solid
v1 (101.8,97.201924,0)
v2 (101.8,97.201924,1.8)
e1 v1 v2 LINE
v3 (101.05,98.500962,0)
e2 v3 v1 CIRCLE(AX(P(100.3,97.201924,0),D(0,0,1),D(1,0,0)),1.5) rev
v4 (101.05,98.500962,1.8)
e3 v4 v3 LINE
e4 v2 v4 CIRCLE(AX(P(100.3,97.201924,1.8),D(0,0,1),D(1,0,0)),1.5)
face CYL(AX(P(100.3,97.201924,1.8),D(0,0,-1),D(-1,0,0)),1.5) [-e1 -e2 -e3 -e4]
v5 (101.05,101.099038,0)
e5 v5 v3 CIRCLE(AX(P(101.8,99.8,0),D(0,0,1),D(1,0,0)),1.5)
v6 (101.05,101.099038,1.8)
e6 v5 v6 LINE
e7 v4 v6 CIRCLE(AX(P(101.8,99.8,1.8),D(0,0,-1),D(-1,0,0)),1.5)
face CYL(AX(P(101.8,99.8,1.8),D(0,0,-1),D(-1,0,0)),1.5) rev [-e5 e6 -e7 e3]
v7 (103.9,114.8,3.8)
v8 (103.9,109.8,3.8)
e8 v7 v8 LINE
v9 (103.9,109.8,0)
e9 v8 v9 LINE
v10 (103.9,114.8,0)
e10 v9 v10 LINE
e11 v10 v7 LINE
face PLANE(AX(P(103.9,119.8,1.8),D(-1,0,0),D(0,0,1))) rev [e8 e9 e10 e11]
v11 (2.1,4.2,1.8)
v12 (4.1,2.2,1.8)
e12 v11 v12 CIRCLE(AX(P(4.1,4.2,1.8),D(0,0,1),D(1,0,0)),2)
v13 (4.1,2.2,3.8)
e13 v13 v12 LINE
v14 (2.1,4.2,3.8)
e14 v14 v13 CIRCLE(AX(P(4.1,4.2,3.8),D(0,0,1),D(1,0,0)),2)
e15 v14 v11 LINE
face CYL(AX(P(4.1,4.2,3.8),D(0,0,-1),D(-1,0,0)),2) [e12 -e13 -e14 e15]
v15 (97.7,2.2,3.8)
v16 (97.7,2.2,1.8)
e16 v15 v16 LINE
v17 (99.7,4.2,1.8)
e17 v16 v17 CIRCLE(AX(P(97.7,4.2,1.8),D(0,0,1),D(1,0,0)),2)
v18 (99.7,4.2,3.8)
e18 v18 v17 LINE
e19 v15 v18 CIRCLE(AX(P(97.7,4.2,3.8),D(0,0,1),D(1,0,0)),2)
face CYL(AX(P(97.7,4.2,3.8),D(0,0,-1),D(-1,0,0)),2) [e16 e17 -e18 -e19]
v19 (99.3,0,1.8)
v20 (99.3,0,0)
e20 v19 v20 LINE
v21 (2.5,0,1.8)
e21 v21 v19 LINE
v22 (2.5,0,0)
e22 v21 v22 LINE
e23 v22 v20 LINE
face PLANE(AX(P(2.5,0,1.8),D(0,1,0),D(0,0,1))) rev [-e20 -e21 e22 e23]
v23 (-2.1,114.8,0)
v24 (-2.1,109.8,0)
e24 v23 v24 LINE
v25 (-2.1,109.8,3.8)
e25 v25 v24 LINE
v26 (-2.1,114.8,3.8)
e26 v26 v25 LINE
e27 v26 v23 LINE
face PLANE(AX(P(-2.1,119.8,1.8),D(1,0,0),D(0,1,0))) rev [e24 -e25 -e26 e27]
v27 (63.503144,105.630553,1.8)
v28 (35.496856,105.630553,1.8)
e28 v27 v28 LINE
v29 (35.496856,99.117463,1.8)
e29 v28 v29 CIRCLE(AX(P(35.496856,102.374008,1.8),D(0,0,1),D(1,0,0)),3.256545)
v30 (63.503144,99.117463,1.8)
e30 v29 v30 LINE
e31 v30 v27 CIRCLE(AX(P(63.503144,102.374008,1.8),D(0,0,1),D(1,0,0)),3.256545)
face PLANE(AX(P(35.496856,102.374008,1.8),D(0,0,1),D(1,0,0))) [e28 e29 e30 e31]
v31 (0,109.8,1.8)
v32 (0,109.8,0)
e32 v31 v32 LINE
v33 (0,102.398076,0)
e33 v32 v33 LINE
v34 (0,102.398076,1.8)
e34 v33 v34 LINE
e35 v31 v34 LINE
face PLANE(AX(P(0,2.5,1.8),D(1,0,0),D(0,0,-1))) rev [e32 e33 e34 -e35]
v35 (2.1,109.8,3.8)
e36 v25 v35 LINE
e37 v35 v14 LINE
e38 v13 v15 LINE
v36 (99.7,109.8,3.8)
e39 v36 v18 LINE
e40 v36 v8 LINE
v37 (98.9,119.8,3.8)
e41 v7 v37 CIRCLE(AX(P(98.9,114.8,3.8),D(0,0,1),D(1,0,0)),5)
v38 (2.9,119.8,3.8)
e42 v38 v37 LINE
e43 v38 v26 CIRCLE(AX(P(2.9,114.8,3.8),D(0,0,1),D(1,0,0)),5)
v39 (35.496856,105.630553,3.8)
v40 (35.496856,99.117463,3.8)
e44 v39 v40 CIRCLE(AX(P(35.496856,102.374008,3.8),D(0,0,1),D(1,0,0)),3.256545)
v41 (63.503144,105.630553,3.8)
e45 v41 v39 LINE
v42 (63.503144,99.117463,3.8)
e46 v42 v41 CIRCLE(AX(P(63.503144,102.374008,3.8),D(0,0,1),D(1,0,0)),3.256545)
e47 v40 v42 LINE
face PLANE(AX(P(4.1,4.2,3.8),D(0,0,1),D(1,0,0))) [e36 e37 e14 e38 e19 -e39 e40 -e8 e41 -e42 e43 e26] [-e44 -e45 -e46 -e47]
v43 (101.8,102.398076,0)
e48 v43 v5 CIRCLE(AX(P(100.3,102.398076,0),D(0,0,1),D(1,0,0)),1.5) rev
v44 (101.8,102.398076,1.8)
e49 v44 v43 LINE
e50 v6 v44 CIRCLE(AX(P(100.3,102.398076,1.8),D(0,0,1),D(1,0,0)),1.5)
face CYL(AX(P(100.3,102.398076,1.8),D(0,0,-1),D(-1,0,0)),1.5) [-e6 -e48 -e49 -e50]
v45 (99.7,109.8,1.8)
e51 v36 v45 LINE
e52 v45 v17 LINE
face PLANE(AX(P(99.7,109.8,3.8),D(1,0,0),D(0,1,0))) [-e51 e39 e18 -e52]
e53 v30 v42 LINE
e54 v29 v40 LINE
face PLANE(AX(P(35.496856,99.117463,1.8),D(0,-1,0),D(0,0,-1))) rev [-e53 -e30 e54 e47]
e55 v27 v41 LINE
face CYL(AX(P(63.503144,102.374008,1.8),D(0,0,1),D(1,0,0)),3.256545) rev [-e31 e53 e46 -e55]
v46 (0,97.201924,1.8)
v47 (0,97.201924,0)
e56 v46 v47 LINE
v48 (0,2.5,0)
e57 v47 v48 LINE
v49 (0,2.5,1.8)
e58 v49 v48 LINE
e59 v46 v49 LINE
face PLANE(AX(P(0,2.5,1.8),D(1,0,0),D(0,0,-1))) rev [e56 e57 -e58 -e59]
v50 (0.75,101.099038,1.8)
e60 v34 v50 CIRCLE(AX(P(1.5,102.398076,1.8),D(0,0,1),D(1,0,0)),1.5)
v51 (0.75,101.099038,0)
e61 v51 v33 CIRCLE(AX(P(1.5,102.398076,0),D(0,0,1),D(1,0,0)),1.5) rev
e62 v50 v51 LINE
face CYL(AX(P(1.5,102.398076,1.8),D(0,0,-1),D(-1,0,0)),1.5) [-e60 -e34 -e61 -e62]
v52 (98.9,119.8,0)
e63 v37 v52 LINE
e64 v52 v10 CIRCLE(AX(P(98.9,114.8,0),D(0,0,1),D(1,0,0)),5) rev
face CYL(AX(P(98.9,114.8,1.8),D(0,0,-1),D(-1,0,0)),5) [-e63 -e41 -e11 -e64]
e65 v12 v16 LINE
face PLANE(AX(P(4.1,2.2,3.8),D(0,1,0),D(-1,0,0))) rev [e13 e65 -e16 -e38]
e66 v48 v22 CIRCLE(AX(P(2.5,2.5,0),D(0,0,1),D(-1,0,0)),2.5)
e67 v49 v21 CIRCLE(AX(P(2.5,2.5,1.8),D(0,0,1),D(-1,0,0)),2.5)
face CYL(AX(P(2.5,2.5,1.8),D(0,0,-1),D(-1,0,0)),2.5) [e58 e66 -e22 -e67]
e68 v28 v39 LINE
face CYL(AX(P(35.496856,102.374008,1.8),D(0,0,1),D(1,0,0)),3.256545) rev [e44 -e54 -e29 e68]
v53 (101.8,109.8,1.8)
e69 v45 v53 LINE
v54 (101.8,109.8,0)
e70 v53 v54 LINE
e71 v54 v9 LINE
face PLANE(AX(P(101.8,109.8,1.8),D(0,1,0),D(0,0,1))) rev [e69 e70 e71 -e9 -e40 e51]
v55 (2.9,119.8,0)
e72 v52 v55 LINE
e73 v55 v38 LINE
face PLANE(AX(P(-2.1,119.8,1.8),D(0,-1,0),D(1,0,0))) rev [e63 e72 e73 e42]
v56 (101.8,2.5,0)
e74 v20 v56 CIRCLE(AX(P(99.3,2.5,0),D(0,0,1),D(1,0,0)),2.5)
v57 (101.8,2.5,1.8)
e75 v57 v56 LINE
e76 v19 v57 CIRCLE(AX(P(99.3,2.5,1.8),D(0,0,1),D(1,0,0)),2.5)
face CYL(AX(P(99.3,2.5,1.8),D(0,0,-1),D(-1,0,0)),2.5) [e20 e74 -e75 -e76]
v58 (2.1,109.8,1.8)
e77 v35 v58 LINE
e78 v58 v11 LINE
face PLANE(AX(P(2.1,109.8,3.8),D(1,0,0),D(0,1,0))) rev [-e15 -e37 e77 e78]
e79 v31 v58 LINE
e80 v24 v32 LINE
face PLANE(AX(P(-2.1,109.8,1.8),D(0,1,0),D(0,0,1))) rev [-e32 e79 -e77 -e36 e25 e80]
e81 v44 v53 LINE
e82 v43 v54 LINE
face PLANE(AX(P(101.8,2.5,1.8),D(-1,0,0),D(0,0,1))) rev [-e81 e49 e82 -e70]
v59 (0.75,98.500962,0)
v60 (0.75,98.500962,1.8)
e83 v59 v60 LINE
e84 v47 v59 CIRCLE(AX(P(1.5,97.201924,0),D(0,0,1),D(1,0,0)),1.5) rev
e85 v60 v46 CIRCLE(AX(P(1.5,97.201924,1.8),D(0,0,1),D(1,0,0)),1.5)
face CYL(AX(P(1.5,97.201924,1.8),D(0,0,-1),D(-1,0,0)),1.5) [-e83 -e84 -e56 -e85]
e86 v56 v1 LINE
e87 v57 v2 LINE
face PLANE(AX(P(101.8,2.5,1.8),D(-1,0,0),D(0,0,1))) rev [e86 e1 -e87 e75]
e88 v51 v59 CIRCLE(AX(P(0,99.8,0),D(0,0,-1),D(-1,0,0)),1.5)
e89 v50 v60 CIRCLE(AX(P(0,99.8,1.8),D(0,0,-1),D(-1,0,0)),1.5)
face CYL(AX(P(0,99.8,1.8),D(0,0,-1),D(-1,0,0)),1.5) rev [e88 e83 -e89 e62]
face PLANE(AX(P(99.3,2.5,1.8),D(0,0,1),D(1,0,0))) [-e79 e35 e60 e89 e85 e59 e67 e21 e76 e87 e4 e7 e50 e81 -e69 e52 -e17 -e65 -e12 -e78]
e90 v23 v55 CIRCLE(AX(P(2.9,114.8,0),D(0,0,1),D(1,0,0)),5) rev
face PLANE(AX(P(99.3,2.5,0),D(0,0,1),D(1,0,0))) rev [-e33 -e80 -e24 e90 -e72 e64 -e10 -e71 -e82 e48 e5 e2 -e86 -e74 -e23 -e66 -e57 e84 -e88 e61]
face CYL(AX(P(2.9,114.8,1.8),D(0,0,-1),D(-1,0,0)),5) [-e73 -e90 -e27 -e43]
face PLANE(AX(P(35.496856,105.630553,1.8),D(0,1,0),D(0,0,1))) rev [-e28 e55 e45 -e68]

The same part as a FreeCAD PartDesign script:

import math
import FreeCAD as App
import Part
import Sketcher
Q = App.Units.Quantity


def edges_at(feature, points):
    """Names of the edges that pass closest to the given points."""
    edges = feature.Shape.Edges
    near = lambda p: min(range(len(edges)), key=lambda i: edges[i].distToShape(Part.Vertex(*p))[0])
    return sorted({f"Edge{near(p) + 1}" for p in points})

doc = App.newDocument("Part")
params = doc.addObject("Spreadsheet::Sheet", "Params")
for row, (alias, value) in enumerate([
    ("sketch1_radius", "2.5 mm"),
    ("sketch1_width", "106 mm"),
    ("sketch1_height", "10 mm"),
    ("sketch1_width2", "2.1 mm"),
    ("sketch1_height2", "107.3 mm"),
    ("pad1_length", "1.8 mm"),
    ("sketch2_radius", "2 mm"),
    ("sketch2_width", "106 mm"),
    ("sketch2_height", "10 mm"),
    ("sketch2_width2", "93.6 mm"),
    ("sketch2_height2", "105.6 mm"),
    ("pad2_length", "2 mm"),
    ("pocket1_length", "2 mm"),
    ("sketch4_diameter", "3 mm"),
    ("pocket2_length", "1.8 mm"),
    ("fillet_radius", "1.5 mm"),
    ("fillet2_radius", "5 mm"),
], start=1):
    params.set(f"A{row}", alias)
    params.set(f"B{row}", "=" + value)
    params.setAlias(f"B{row}", alias)

body = doc.addObject("PartDesign::Body", "Body")

sketch1 = body.newObject("Sketcher::SketchObject", "Sketch")
sketch1.AttachmentSupport = (doc.getObject("XY_Plane"), [""])
sketch1.MapMode = "FlatFace"
sketch1.addGeometry([
    Part.LineSegment(App.Vector(101.8, 109.8, 0), App.Vector(103.9, 109.8, 0)),
    Part.LineSegment(App.Vector(103.9, 109.8, 0), App.Vector(103.9, 119.8, 0)),
    Part.LineSegment(App.Vector(103.9, 119.8, 0), App.Vector(-2.1, 119.8, 0)),
    Part.LineSegment(App.Vector(-2.1, 119.8, 0), App.Vector(-2.1, 109.8, 0)),
    Part.LineSegment(App.Vector(-2.1, 109.8, 0), App.Vector(0, 109.8, 0)),
    Part.LineSegment(App.Vector(0, 109.8, 0), App.Vector(0, 2.5, 0)),
    Part.ArcOfCircle(Part.Circle(App.Vector(2.5, 2.5, 0), App.Vector(0, 0, 1), 2.5), math.radians(180), math.radians(270)),
    Part.LineSegment(App.Vector(2.5, 0, 0), App.Vector(99.3, 0, 0)),
    Part.ArcOfCircle(Part.Circle(App.Vector(99.3, 2.5, 0), App.Vector(0, 0, 1), 2.5), math.radians(-90), math.radians(0)),
    Part.LineSegment(App.Vector(101.8, 2.5, 0), App.Vector(101.8, 109.8, 0)),
], False)
sketch1.addConstraint([
    Sketcher.Constraint("Coincident", 0, 2, 1, 1),
    Sketcher.Constraint("Coincident", 1, 2, 2, 1),
    Sketcher.Constraint("Coincident", 2, 2, 3, 1),
    Sketcher.Constraint("Coincident", 3, 2, 4, 1),
    Sketcher.Constraint("Coincident", 4, 2, 5, 1),
    Sketcher.Constraint("Tangent", 5, 2, 6, 1),
    Sketcher.Constraint("Tangent", 6, 2, 7, 1),
    Sketcher.Constraint("Tangent", 7, 2, 8, 1),
    Sketcher.Constraint("Tangent", 8, 2, 9, 1),
    Sketcher.Constraint("Coincident", 9, 2, 0, 1),
    Sketcher.Constraint("Horizontal", 0),
    Sketcher.Constraint("Vertical", 1),
    Sketcher.Constraint("Horizontal", 2),
    Sketcher.Constraint("Vertical", 3),
    Sketcher.Constraint("Horizontal", 4),
    Sketcher.Constraint("Vertical", 5),
    Sketcher.Constraint("Horizontal", 7),
    Sketcher.Constraint("Vertical", 9),
    Sketcher.Constraint("Equal", 6, 8),
    Sketcher.Constraint("PointOnObject", 4, 2, -2),
    Sketcher.Constraint("PointOnObject", 6, 2, -1),
    Sketcher.Constraint("Horizontal", 0, 2, 3, 2),
    Sketcher.Constraint("Equal", 0, 4),
    Sketcher.Constraint("Radius", 6, Q("2.5 mm")),
    Sketcher.Constraint("DistanceX", 2, 2, 2, 1, Q("106 mm")),
    Sketcher.Constraint("DistanceY", 1, 1, 1, 2, Q("10 mm")),
    Sketcher.Constraint("DistanceX", 0, 1, 0, 2, Q("2.1 mm")),
    Sketcher.Constraint("DistanceY", 5, 2, 5, 1, Q("107.3 mm")),
])
sketch1.setExpression("Constraints[23]", "Params.sketch1_radius")
sketch1.setExpression("Constraints[24]", "Params.sketch1_width")
sketch1.setExpression("Constraints[25]", "Params.sketch1_height")
sketch1.setExpression("Constraints[26]", "Params.sketch1_width2")
sketch1.setExpression("Constraints[27]", "Params.sketch1_height2")
pad1 = body.newObject("PartDesign::Pad", "Pad")
pad1.Profile = sketch1
pad1.setExpression("Length", "Params.pad1_length")

sketch2 = body.newObject("Sketcher::SketchObject", "Sketch001")
sketch2.AttachmentSupport = (doc.getObject("XY_Plane"), [""])
sketch2.MapMode = "FlatFace"
sketch2.AttachmentOffset = App.Placement(App.Vector(0, 0, 1.8), App.Rotation())
sketch2.addGeometry([
    Part.LineSegment(App.Vector(2.1, 109.8, 0), App.Vector(2.1, 4.2, 0)),
    Part.ArcOfCircle(Part.Circle(App.Vector(4.1, 4.2, 0), App.Vector(0, 0, 1), 2), math.radians(-180), math.radians(-90)),
    Part.LineSegment(App.Vector(4.1, 2.2, 0), App.Vector(97.7, 2.2, 0)),
    Part.ArcOfCircle(Part.Circle(App.Vector(97.7, 4.2, 0), App.Vector(0, 0, 1), 2), math.radians(-90), math.radians(0)),
    Part.LineSegment(App.Vector(99.7, 4.2, 0), App.Vector(99.7, 109.8, 0)),
    Part.LineSegment(App.Vector(99.7, 109.8, 0), App.Vector(103.9, 109.8, 0)),
    Part.LineSegment(App.Vector(103.9, 109.8, 0), App.Vector(103.9, 119.8, 0)),
    Part.LineSegment(App.Vector(103.9, 119.8, 0), App.Vector(-2.1, 119.8, 0)),
    Part.LineSegment(App.Vector(-2.1, 119.8, 0), App.Vector(-2.1, 109.8, 0)),
    Part.LineSegment(App.Vector(-2.1, 109.8, 0), App.Vector(2.1, 109.8, 0)),
], False)
sketch2.addConstraint([
    Sketcher.Constraint("Tangent", 0, 2, 1, 1),
    Sketcher.Constraint("Tangent", 1, 2, 2, 1),
    Sketcher.Constraint("Tangent", 2, 2, 3, 1),
    Sketcher.Constraint("Tangent", 3, 2, 4, 1),
    Sketcher.Constraint("Coincident", 4, 2, 5, 1),
    Sketcher.Constraint("Coincident", 5, 2, 6, 1),
    Sketcher.Constraint("Coincident", 6, 2, 7, 1),
    Sketcher.Constraint("Coincident", 7, 2, 8, 1),
    Sketcher.Constraint("Coincident", 8, 2, 9, 1),
    Sketcher.Constraint("Coincident", 9, 2, 0, 1),
    Sketcher.Constraint("Vertical", 0),
    Sketcher.Constraint("Horizontal", 2),
    Sketcher.Constraint("Vertical", 4),
    Sketcher.Constraint("Horizontal", 5),
    Sketcher.Constraint("Vertical", 6),
    Sketcher.Constraint("Horizontal", 7),
    Sketcher.Constraint("Vertical", 8),
    Sketcher.Constraint("Horizontal", 9),
    Sketcher.Constraint("Equal", 1, 3),
    Sketcher.Constraint("Horizontal", 5, 2, 8, 2),
    Sketcher.Constraint("Equal", 5, 9),
    Sketcher.Constraint("Radius", 1, Q("2 mm")),
    Sketcher.Constraint("DistanceX", 7, 2, 7, 1, Q("106 mm")),
    Sketcher.Constraint("DistanceY", 6, 1, 6, 2, Q("10 mm")),
    Sketcher.Constraint("DistanceX", 2, 1, 2, 2, Q("93.6 mm")),
    Sketcher.Constraint("DistanceY", 0, 2, 0, 1, Q("105.6 mm")),
    Sketcher.Constraint("DistanceX", -1, 1, 1, 3, Q("4.1 mm")),
    Sketcher.Constraint("DistanceY", -1, 1, 1, 3, Q("4.2 mm")),
])
sketch2.setExpression("Constraints[21]", "Params.sketch2_radius")
sketch2.setExpression("Constraints[22]", "Params.sketch2_width")
sketch2.setExpression("Constraints[23]", "Params.sketch2_height")
sketch2.setExpression("Constraints[24]", "Params.sketch2_width2")
sketch2.setExpression("Constraints[25]", "Params.sketch2_height2")
pad2 = body.newObject("PartDesign::Pad", "Pad001")
pad2.Profile = sketch2
pad2.setExpression("Length", "Params.pad2_length")

sketch3 = body.newObject("Sketcher::SketchObject", "Sketch002")
sketch3.AttachmentSupport = (doc.getObject("XY_Plane"), [""])
sketch3.MapMode = "FlatFace"
sketch3.AttachmentOffset = App.Placement(App.Vector(0, 0, 3.8), App.Rotation())
sketch3.addGeometry([
    Part.LineSegment(App.Vector(63.503144, 105.630553, 0), App.Vector(35.496856, 105.630553, 0)),
    Part.ArcOfCircle(Part.Circle(App.Vector(35.496856, 102.374008, 0), App.Vector(0, 0, 1), 3.256545), math.radians(90), math.radians(270)),
    Part.LineSegment(App.Vector(35.496856, 99.117463, 0), App.Vector(63.503144, 99.117463, 0)),
    Part.ArcOfCircle(Part.Circle(App.Vector(63.503144, 102.374008, 0), App.Vector(0, 0, 1), 3.256545), math.radians(-90), math.radians(90)),
], False)
sketch3.addConstraint([
    Sketcher.Constraint("Tangent", 0, 2, 1, 1),
    Sketcher.Constraint("Tangent", 1, 2, 2, 1),
    Sketcher.Constraint("Tangent", 2, 2, 3, 1),
    Sketcher.Constraint("Tangent", 3, 2, 0, 1),
    Sketcher.Constraint("Horizontal", 0),
    Sketcher.Constraint("Horizontal", 2),
    Sketcher.Constraint("Radius", 1, Q("3.256545 mm")),
    Sketcher.Constraint("DistanceX", 0, 2, 0, 1, Q("28.006287 mm")),
    Sketcher.Constraint("DistanceY", -1, 1, 1, 3, Q("102.374008 mm")),
    Sketcher.Constraint("DistanceX", -1, 1, 1, 3, Q("35.496856 mm")),
])
pocket1 = body.newObject("PartDesign::Pocket", "Pocket")
pocket1.Profile = sketch3
pocket1.setExpression("Length", "Params.pocket1_length")

sketch4 = body.newObject("Sketcher::SketchObject", "Sketch003")
sketch4.AttachmentSupport = (doc.getObject("XY_Plane"), [""])
sketch4.MapMode = "FlatFace"
sketch4.addGeometry([
    Part.Circle(App.Vector(101.8, 99.8, 0), App.Vector(0, 0, 1), 1.5),
    Part.Circle(App.Vector(0, 99.8, 0), App.Vector(0, 0, 1), 1.5),
], False)
sketch4.addConstraint([
    Sketcher.Constraint("Equal", 0, 1),
    Sketcher.Constraint("PointOnObject", 1, 3, -2),
    Sketcher.Constraint("Horizontal", 0, 3, 1, 3),
    Sketcher.Constraint("Diameter", 0, Q("3 mm")),
    Sketcher.Constraint("DistanceX", -1, 1, 0, 3, Q("101.8 mm")),
    Sketcher.Constraint("DistanceY", -1, 1, 0, 3, Q("99.8 mm")),
])
sketch4.setExpression("Constraints[3]", "Params.sketch4_diameter")
pocket2 = body.newObject("PartDesign::Pocket", "Pocket001")
pocket2.Profile = sketch4
pocket2.setExpression("Length", "Params.pocket2_length")
pocket2.Reversed = True
doc.recompute()

fillet = body.newObject("PartDesign::Fillet", "Fillet")
fillet.Base = (pocket2, edges_at(pocket2, [
    (101.8, 101.3, 0.9),
    (101.8, 98.3, 0.9),
    (0, 98.3, 0.9),
    (0, 101.3, 0.9),
]))
fillet.setExpression("Radius", "Params.fillet_radius")
doc.recompute()

fillet2 = body.newObject("PartDesign::Fillet", "Fillet001")
fillet2.Base = (fillet, edges_at(fillet, [(-2.1, 119.8, 1.9), (103.9, 119.8, 1.9)]))
fillet2.setExpression("Radius", "Params.fillet2_radius")

doc.recompute()
